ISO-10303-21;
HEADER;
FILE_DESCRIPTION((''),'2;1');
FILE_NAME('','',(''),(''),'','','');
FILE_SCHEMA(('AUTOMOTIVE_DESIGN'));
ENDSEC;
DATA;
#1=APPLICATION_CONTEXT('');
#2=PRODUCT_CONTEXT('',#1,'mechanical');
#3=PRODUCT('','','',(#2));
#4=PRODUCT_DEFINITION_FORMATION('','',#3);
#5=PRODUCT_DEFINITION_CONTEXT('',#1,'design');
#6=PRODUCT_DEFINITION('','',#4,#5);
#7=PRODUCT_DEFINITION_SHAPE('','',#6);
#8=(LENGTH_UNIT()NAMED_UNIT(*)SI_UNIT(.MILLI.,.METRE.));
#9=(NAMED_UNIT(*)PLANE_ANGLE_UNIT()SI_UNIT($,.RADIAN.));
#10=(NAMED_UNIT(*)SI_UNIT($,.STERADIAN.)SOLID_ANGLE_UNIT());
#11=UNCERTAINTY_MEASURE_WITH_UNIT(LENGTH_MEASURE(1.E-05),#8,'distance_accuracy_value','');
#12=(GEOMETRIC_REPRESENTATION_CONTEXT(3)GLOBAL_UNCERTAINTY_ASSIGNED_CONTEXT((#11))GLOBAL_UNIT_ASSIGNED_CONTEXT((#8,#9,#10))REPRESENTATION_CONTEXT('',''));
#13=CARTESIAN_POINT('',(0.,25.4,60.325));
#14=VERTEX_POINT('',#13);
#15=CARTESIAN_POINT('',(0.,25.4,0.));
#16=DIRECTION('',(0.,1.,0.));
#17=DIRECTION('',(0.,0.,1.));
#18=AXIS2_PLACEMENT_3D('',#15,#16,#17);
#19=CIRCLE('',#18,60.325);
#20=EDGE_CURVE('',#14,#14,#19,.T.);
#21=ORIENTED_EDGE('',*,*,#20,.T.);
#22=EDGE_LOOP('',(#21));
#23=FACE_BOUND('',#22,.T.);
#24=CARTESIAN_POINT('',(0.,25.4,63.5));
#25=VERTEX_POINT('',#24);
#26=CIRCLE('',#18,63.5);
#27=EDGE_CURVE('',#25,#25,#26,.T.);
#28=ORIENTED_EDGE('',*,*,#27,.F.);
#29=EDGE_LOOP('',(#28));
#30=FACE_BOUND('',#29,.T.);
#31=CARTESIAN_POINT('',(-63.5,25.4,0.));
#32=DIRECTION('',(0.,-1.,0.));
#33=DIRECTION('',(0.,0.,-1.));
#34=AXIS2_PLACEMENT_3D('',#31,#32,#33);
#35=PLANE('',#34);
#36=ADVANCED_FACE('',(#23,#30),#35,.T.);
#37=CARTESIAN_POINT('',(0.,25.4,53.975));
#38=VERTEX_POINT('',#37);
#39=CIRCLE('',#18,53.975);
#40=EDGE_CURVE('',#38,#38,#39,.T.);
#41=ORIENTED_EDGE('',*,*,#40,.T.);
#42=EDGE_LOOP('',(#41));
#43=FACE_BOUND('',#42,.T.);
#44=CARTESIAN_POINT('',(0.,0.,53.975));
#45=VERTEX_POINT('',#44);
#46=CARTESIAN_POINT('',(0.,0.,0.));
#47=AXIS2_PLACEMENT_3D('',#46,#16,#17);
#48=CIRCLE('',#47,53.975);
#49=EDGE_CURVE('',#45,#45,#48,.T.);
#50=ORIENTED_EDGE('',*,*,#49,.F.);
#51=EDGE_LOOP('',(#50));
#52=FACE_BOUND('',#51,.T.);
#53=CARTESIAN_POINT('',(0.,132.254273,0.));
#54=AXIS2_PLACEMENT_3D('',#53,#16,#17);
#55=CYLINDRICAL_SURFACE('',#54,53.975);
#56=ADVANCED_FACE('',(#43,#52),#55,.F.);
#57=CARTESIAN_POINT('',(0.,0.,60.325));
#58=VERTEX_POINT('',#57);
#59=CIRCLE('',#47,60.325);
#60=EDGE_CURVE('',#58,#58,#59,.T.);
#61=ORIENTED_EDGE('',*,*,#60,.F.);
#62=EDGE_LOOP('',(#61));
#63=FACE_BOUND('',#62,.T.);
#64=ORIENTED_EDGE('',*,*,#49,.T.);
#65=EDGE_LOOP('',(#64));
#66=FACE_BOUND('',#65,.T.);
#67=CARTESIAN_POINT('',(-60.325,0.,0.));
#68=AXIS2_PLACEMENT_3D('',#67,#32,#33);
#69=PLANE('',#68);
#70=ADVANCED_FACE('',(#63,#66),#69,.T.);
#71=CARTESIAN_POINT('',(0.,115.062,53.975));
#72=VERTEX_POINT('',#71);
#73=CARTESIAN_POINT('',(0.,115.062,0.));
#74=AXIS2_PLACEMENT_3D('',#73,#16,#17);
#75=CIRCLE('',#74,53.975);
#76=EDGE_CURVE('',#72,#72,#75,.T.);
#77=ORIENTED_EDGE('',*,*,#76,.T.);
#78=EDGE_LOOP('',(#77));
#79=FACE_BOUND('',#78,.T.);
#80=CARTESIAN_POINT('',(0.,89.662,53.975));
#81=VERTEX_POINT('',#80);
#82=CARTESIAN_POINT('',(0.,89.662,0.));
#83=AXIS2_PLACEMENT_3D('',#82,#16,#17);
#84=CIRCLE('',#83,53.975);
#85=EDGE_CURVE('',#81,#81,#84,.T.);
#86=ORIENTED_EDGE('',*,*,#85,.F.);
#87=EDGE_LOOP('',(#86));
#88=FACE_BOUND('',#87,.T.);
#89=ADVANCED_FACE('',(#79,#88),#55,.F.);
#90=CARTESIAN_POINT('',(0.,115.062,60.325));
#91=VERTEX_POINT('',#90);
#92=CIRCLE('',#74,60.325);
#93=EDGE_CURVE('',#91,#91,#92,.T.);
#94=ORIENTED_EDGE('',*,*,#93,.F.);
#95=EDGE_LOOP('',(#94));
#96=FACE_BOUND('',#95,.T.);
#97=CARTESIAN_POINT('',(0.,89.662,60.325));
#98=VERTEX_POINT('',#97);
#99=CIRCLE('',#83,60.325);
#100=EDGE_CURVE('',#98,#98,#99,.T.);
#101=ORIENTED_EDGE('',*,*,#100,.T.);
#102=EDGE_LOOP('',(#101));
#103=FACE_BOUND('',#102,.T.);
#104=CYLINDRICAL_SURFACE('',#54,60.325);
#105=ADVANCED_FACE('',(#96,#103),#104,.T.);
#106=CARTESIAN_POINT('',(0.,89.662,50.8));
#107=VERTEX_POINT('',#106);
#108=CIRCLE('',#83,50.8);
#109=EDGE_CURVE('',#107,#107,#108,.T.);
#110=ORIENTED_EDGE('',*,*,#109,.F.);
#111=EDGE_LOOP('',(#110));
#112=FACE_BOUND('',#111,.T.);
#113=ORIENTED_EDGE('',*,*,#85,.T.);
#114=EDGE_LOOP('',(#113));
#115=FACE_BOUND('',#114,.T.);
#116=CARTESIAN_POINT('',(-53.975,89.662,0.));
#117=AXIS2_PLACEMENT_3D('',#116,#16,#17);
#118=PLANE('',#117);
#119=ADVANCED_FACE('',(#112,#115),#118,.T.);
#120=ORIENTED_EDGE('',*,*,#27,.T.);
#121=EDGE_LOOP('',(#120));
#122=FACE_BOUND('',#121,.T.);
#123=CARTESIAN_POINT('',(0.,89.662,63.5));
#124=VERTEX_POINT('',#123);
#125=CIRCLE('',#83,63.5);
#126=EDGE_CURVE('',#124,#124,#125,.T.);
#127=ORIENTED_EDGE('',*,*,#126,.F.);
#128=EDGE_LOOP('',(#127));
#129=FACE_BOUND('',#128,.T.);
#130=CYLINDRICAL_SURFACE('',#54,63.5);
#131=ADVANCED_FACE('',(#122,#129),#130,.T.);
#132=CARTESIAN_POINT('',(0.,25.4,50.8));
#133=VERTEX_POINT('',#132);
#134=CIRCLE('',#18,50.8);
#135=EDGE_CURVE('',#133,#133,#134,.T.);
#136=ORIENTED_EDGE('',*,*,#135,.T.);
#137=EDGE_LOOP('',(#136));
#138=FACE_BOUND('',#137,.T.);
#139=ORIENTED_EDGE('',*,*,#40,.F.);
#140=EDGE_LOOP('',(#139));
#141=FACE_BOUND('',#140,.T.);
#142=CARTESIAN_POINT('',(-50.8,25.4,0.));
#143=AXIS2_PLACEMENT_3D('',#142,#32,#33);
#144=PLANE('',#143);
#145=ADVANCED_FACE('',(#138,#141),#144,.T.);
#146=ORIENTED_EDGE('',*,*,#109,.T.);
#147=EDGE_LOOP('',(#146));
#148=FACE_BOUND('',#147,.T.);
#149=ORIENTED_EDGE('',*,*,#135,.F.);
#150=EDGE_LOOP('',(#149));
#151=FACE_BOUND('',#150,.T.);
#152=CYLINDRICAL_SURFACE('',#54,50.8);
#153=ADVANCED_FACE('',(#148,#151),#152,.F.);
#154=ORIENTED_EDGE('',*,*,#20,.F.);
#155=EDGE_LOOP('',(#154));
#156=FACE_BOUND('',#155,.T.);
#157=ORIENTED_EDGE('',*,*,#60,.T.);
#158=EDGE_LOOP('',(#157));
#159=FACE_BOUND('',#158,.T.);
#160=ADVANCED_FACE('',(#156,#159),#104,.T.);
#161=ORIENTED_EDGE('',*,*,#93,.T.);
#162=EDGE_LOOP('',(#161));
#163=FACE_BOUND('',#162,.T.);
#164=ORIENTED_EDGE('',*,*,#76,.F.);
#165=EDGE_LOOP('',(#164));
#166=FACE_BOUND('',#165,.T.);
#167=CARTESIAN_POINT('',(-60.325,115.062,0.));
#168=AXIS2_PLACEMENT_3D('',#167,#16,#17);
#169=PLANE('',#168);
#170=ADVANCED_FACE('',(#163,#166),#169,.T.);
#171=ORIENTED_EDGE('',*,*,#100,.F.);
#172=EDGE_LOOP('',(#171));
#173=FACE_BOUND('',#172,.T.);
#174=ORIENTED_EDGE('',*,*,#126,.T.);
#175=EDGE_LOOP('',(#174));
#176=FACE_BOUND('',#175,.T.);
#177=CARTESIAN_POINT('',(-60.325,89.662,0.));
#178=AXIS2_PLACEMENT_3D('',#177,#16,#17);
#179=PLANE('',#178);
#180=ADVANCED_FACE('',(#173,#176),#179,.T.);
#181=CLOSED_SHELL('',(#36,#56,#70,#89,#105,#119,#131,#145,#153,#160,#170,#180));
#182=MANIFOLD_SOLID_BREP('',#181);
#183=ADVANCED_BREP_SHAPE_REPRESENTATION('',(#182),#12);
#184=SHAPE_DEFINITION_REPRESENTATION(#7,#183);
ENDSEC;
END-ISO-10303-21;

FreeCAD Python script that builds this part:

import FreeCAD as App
import Part
import Sketcher
Q = App.Units.Quantity


def add_polygon(sketch, points):
    """Adds a closed chain of lines whose ends are joined by coincident constraints."""
    first, n = sketch.GeometryCount, len(points)
    for a, b in zip(points, points[1:] + points[:1]):
        sketch.addGeometry(Part.LineSegment(App.Vector(*a, 0), App.Vector(*b, 0)), False)
    for i in range(n):
        sketch.addConstraint(Sketcher.Constraint("Coincident", first + i, 2, first + (i + 1) % n, 1))

doc = App.newDocument("Part")
body = doc.addObject("PartDesign::Body", "Body")

# Sketch on XY plane
sketch1 = body.newObject("Sketcher::SketchObject", "Sketch")
sketch1.AttachmentSupport = (doc.getObject("XY_Plane"), [""])
sketch1.MapMode = "FlatFace"
add_polygon(sketch1, [(-60.3, 0), (-54, 0), (-54, 25.4), (-50.8, 25.4), (-50.8, 89.7), (-54, 89.7), (-54, 115.1), (-60.3, 115.1), (-60.3, 89.7), (-63.5, 89.7), (-63.5, 25.4), (-60.3, 25.4)])  # lines 0-11
sketch1.addConstraint(Sketcher.Constraint("Horizontal", 0))
sketch1.addConstraint(Sketcher.Constraint("Vertical", 1))
sketch1.addConstraint(Sketcher.Constraint("Horizontal", 2))
sketch1.addConstraint(Sketcher.Constraint("Vertical", 3))
sketch1.addConstraint(Sketcher.Constraint("Horizontal", 4))
sketch1.addConstraint(Sketcher.Constraint("Vertical", 5))
sketch1.addConstraint(Sketcher.Constraint("Horizontal", 6))
sketch1.addConstraint(Sketcher.Constraint("Vertical", 7))
sketch1.addConstraint(Sketcher.Constraint("Horizontal", 8))
sketch1.addConstraint(Sketcher.Constraint("Vertical", 9))
sketch1.addConstraint(Sketcher.Constraint("Horizontal", 10))
sketch1.addConstraint(Sketcher.Constraint("Vertical", 11))
sketch1.addConstraint(Sketcher.Constraint("PointOnObject", 0, 2, -1))
sketch1.addConstraint(Sketcher.Constraint("Horizontal", 4, 2, 7, 2))
sketch1.addConstraint(Sketcher.Constraint("Horizontal", 2, 2, 9, 2))
sketch1.addConstraint(Sketcher.Constraint("Vertical", 1, 2, 4, 2))
sketch1.addConstraint(Sketcher.Constraint("Vertical", 7, 2, 10, 2))
sketch1.addConstraint(Sketcher.Constraint("Equal", 4, 8))
sketch1.addConstraint(Sketcher.Constraint("Equal", 1, 5))
sketch1.addConstraint(Sketcher.Constraint("DistanceY", 1, 1, 1, 2, Q("1 in")))
sketch1.addConstraint(Sketcher.Constraint("DistanceX", 2, 2, -1, 1, Q("2 in")))
sketch1.addConstraint(Sketcher.Constraint("DistanceX", 0, 1, 0, 2, Q("0.25 in")))
sketch1.addConstraint(Sketcher.Constraint("DistanceY", 3, 1, 3, 2, Q("2.53 in")))
sketch1.addConstraint(Sketcher.Constraint("DistanceX", 8, 2, -1, 1, Q("2.5 in")))
revolution = body.newObject("PartDesign::Revolution", "Revolution")
revolution.Profile = sketch1
revolution.ReferenceAxis = (sketch1, ["V_Axis"])
revolution.Angle = 360

doc.recompute()
